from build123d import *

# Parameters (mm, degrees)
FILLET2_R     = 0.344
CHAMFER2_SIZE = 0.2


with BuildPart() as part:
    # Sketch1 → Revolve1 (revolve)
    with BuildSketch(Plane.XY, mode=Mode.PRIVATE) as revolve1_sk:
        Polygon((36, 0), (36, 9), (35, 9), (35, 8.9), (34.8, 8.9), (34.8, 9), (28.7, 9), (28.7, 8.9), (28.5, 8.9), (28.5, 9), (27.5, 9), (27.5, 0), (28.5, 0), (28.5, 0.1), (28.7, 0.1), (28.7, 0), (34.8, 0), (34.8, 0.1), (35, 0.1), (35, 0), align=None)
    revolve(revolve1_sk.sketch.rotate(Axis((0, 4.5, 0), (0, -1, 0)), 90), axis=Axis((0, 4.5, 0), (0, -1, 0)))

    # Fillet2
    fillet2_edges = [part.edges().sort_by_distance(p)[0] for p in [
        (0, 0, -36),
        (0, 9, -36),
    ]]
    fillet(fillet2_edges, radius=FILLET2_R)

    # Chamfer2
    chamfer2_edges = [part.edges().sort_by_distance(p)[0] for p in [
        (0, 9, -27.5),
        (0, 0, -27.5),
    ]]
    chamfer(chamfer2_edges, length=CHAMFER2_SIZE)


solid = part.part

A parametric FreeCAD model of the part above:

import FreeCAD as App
import Part
import Sketcher

V = App.Vector


def edges_at(feature, points):
    """Names of the edges that pass closest to the given points."""
    edges = feature.Shape.Edges
    near = lambda p: min(range(len(edges)), key=lambda i: edges[i].distToShape(Part.Vertex(*p))[0])
    return sorted({f"Edge{near(p) + 1}" for p in points})

doc = App.newDocument("Part")
body = doc.addObject("PartDesign::Body", "Body")

sketch1 = doc.addObject("Sketcher::SketchObject", "Sketch")
body.addObject(sketch1)
sketch1.AttachmentSupport = (doc.XY_Plane, [""])
sketch1.MapMode = "FlatFace"
sketch1.addGeometry([
    Part.LineSegment(V(36, 0, 0), V(36, 9, 0)),
    Part.LineSegment(V(36, 9, 0), V(35, 9, 0)),
    Part.LineSegment(V(35, 9, 0), V(35, 8.9, 0)),
    Part.LineSegment(V(35, 8.9, 0), V(34.8, 8.9, 0)),
    Part.LineSegment(V(34.8, 8.9, 0), V(34.8, 9, 0)),
    Part.LineSegment(V(34.8, 9, 0), V(28.7, 9, 0)),
    Part.LineSegment(V(28.7, 9, 0), V(28.7, 8.9, 0)),
    Part.LineSegment(V(28.7, 8.9, 0), V(28.5, 8.9, 0)),
    Part.LineSegment(V(28.5, 8.9, 0), V(28.5, 9, 0)),
    Part.LineSegment(V(28.5, 9, 0), V(27.5, 9, 0)),
    Part.LineSegment(V(27.5, 9, 0), V(27.5, 0, 0)),
    Part.LineSegment(V(27.5, 0, 0), V(28.5, 0, 0)),
    Part.LineSegment(V(28.5, 0, 0), V(28.5, 0.1, 0)),
    Part.LineSegment(V(28.5, 0.1, 0), V(28.7, 0.1, 0)),
    Part.LineSegment(V(28.7, 0.1, 0), V(28.7, 0, 0)),
    Part.LineSegment(V(28.7, 0, 0), V(34.8, 0, 0)),
    Part.LineSegment(V(34.8, 0, 0), V(34.8, 0.1, 0)),
    Part.LineSegment(V(34.8, 0.1, 0), V(35, 0.1, 0)),
    Part.LineSegment(V(35, 0.1, 0), V(35, 0, 0)),
    Part.LineSegment(V(35, 0, 0), V(36, 0, 0)),
], False)
sketch1.addConstraint([
    Sketcher.Constraint("Coincident", 0, 2, 1, 1),
    Sketcher.Constraint("Coincident", 1, 2, 2, 1),
    Sketcher.Constraint("Coincident", 2, 2, 3, 1),
    Sketcher.Constraint("Coincident", 3, 2, 4, 1),
    Sketcher.Constraint("Coincident", 4, 2, 5, 1),
    Sketcher.Constraint("Coincident", 5, 2, 6, 1),
    Sketcher.Constraint("Coincident", 6, 2, 7, 1),
    Sketcher.Constraint("Coincident", 7, 2, 8, 1),
    Sketcher.Constraint("Coincident", 8, 2, 9, 1),
    Sketcher.Constraint("Coincident", 9, 2, 10, 1),
    Sketcher.Constraint("Coincident", 10, 2, 11, 1),
    Sketcher.Constraint("Coincident", 11, 2, 12, 1),
    Sketcher.Constraint("Coincident", 12, 2, 13, 1),
    Sketcher.Constraint("Coincident", 13, 2, 14, 1),
    Sketcher.Constraint("Coincident", 14, 2, 15, 1),
    Sketcher.Constraint("Coincident", 15, 2, 16, 1),
    Sketcher.Constraint("Coincident", 16, 2, 17, 1),
    Sketcher.Constraint("Coincident", 17, 2, 18, 1),
    Sketcher.Constraint("Coincident", 18, 2, 19, 1),
    Sketcher.Constraint("Coincident", 19, 2, 0, 1),
    Sketcher.Constraint("Vertical", 0),
    Sketcher.Constraint("Horizontal", 1),
    Sketcher.Constraint("Vertical", 2),
    Sketcher.Constraint("Horizontal", 3),
    Sketcher.Constraint("Vertical", 4),
    Sketcher.Constraint("Horizontal", 5),
    Sketcher.Constraint("Vertical", 6),
    Sketcher.Constraint("Horizontal", 7),
    Sketcher.Constraint("Vertical", 8),
    Sketcher.Constraint("Horizontal", 9),
    Sketcher.Constraint("Vertical", 10),
    Sketcher.Constraint("Horizontal", 11),
    Sketcher.Constraint("Vertical", 12),
    Sketcher.Constraint("Horizontal", 13),
    Sketcher.Constraint("Vertical", 14),
    Sketcher.Constraint("Horizontal", 15),
    Sketcher.Constraint("Vertical", 16),
    Sketcher.Constraint("Horizontal", 17),
    Sketcher.Constraint("Vertical", 18),
    Sketcher.Constraint("Horizontal", 19),
    Sketcher.Constraint("PointOnObject", 10, 2, -1),
    Sketcher.Constraint("PointOnObject", 14, 2, -1),
    Sketcher.Constraint("PointOnObject", 18, 2, -1),
    Sketcher.Constraint("Horizontal", 1, 2, 4, 2),
    Sketcher.Constraint("Horizontal", 3, 2, 6, 2),
    Sketcher.Constraint("Horizontal", 5, 2, 8, 2),
    Sketcher.Constraint("Horizontal", 13, 2, 16, 2),
    Sketcher.Constraint("Vertical", 8, 2, 11, 2),
    Sketcher.Constraint("Vertical", 6, 2, 13, 2),
    Sketcher.Constraint("Vertical", 4, 2, 15, 2),
    Sketcher.Constraint("Vertical", 2, 2, 17, 2),
    Sketcher.Constraint("Equal", 3, 7),
    Sketcher.Constraint("Equal", 1, 9),
    Sketcher.Constraint("Equal", 8, 12),
    Sketcher.Constraint("DistanceX", 1, 2, 1, 1, 1.0),
    Sketcher.Constraint("DistanceY", 0, 1, 0, 2, 9.0),
    Sketcher.Constraint("DistanceX", 3, 2, 3, 1, 0.2),
    Sketcher.Constraint("DistanceX", 5, 2, 5, 1, 6.1),
    Sketcher.Constraint("DistanceY", 2, 2, 2, 1, 0.1),
    Sketcher.Constraint("DistanceX", -1, 1, 0, 2, 36.0),
])
revolution = doc.addObject("PartDesign::Revolution", "Revolution")
body.addObject(revolution)
revolution.Profile = sketch1
revolution.ReferenceAxis = (sketch1, ["V_Axis"])
revolution.Angle = 360
doc.recompute()

fillet = doc.addObject("PartDesign::Fillet", "Fillet")
body.addObject(fillet)
fillet.Base = (revolution, edges_at(revolution, [(0, 0, -36), (0, 9, -36)]))
fillet.Radius = 0.344
doc.recompute()

chamfer = doc.addObject("PartDesign::Chamfer", "Chamfer")
body.addObject(chamfer)
chamfer.Base = (fillet, edges_at(fillet, [(0, 9, -27.5), (0, 0, -27.5)]))
chamfer.Size = 0.2

doc.recompute()
